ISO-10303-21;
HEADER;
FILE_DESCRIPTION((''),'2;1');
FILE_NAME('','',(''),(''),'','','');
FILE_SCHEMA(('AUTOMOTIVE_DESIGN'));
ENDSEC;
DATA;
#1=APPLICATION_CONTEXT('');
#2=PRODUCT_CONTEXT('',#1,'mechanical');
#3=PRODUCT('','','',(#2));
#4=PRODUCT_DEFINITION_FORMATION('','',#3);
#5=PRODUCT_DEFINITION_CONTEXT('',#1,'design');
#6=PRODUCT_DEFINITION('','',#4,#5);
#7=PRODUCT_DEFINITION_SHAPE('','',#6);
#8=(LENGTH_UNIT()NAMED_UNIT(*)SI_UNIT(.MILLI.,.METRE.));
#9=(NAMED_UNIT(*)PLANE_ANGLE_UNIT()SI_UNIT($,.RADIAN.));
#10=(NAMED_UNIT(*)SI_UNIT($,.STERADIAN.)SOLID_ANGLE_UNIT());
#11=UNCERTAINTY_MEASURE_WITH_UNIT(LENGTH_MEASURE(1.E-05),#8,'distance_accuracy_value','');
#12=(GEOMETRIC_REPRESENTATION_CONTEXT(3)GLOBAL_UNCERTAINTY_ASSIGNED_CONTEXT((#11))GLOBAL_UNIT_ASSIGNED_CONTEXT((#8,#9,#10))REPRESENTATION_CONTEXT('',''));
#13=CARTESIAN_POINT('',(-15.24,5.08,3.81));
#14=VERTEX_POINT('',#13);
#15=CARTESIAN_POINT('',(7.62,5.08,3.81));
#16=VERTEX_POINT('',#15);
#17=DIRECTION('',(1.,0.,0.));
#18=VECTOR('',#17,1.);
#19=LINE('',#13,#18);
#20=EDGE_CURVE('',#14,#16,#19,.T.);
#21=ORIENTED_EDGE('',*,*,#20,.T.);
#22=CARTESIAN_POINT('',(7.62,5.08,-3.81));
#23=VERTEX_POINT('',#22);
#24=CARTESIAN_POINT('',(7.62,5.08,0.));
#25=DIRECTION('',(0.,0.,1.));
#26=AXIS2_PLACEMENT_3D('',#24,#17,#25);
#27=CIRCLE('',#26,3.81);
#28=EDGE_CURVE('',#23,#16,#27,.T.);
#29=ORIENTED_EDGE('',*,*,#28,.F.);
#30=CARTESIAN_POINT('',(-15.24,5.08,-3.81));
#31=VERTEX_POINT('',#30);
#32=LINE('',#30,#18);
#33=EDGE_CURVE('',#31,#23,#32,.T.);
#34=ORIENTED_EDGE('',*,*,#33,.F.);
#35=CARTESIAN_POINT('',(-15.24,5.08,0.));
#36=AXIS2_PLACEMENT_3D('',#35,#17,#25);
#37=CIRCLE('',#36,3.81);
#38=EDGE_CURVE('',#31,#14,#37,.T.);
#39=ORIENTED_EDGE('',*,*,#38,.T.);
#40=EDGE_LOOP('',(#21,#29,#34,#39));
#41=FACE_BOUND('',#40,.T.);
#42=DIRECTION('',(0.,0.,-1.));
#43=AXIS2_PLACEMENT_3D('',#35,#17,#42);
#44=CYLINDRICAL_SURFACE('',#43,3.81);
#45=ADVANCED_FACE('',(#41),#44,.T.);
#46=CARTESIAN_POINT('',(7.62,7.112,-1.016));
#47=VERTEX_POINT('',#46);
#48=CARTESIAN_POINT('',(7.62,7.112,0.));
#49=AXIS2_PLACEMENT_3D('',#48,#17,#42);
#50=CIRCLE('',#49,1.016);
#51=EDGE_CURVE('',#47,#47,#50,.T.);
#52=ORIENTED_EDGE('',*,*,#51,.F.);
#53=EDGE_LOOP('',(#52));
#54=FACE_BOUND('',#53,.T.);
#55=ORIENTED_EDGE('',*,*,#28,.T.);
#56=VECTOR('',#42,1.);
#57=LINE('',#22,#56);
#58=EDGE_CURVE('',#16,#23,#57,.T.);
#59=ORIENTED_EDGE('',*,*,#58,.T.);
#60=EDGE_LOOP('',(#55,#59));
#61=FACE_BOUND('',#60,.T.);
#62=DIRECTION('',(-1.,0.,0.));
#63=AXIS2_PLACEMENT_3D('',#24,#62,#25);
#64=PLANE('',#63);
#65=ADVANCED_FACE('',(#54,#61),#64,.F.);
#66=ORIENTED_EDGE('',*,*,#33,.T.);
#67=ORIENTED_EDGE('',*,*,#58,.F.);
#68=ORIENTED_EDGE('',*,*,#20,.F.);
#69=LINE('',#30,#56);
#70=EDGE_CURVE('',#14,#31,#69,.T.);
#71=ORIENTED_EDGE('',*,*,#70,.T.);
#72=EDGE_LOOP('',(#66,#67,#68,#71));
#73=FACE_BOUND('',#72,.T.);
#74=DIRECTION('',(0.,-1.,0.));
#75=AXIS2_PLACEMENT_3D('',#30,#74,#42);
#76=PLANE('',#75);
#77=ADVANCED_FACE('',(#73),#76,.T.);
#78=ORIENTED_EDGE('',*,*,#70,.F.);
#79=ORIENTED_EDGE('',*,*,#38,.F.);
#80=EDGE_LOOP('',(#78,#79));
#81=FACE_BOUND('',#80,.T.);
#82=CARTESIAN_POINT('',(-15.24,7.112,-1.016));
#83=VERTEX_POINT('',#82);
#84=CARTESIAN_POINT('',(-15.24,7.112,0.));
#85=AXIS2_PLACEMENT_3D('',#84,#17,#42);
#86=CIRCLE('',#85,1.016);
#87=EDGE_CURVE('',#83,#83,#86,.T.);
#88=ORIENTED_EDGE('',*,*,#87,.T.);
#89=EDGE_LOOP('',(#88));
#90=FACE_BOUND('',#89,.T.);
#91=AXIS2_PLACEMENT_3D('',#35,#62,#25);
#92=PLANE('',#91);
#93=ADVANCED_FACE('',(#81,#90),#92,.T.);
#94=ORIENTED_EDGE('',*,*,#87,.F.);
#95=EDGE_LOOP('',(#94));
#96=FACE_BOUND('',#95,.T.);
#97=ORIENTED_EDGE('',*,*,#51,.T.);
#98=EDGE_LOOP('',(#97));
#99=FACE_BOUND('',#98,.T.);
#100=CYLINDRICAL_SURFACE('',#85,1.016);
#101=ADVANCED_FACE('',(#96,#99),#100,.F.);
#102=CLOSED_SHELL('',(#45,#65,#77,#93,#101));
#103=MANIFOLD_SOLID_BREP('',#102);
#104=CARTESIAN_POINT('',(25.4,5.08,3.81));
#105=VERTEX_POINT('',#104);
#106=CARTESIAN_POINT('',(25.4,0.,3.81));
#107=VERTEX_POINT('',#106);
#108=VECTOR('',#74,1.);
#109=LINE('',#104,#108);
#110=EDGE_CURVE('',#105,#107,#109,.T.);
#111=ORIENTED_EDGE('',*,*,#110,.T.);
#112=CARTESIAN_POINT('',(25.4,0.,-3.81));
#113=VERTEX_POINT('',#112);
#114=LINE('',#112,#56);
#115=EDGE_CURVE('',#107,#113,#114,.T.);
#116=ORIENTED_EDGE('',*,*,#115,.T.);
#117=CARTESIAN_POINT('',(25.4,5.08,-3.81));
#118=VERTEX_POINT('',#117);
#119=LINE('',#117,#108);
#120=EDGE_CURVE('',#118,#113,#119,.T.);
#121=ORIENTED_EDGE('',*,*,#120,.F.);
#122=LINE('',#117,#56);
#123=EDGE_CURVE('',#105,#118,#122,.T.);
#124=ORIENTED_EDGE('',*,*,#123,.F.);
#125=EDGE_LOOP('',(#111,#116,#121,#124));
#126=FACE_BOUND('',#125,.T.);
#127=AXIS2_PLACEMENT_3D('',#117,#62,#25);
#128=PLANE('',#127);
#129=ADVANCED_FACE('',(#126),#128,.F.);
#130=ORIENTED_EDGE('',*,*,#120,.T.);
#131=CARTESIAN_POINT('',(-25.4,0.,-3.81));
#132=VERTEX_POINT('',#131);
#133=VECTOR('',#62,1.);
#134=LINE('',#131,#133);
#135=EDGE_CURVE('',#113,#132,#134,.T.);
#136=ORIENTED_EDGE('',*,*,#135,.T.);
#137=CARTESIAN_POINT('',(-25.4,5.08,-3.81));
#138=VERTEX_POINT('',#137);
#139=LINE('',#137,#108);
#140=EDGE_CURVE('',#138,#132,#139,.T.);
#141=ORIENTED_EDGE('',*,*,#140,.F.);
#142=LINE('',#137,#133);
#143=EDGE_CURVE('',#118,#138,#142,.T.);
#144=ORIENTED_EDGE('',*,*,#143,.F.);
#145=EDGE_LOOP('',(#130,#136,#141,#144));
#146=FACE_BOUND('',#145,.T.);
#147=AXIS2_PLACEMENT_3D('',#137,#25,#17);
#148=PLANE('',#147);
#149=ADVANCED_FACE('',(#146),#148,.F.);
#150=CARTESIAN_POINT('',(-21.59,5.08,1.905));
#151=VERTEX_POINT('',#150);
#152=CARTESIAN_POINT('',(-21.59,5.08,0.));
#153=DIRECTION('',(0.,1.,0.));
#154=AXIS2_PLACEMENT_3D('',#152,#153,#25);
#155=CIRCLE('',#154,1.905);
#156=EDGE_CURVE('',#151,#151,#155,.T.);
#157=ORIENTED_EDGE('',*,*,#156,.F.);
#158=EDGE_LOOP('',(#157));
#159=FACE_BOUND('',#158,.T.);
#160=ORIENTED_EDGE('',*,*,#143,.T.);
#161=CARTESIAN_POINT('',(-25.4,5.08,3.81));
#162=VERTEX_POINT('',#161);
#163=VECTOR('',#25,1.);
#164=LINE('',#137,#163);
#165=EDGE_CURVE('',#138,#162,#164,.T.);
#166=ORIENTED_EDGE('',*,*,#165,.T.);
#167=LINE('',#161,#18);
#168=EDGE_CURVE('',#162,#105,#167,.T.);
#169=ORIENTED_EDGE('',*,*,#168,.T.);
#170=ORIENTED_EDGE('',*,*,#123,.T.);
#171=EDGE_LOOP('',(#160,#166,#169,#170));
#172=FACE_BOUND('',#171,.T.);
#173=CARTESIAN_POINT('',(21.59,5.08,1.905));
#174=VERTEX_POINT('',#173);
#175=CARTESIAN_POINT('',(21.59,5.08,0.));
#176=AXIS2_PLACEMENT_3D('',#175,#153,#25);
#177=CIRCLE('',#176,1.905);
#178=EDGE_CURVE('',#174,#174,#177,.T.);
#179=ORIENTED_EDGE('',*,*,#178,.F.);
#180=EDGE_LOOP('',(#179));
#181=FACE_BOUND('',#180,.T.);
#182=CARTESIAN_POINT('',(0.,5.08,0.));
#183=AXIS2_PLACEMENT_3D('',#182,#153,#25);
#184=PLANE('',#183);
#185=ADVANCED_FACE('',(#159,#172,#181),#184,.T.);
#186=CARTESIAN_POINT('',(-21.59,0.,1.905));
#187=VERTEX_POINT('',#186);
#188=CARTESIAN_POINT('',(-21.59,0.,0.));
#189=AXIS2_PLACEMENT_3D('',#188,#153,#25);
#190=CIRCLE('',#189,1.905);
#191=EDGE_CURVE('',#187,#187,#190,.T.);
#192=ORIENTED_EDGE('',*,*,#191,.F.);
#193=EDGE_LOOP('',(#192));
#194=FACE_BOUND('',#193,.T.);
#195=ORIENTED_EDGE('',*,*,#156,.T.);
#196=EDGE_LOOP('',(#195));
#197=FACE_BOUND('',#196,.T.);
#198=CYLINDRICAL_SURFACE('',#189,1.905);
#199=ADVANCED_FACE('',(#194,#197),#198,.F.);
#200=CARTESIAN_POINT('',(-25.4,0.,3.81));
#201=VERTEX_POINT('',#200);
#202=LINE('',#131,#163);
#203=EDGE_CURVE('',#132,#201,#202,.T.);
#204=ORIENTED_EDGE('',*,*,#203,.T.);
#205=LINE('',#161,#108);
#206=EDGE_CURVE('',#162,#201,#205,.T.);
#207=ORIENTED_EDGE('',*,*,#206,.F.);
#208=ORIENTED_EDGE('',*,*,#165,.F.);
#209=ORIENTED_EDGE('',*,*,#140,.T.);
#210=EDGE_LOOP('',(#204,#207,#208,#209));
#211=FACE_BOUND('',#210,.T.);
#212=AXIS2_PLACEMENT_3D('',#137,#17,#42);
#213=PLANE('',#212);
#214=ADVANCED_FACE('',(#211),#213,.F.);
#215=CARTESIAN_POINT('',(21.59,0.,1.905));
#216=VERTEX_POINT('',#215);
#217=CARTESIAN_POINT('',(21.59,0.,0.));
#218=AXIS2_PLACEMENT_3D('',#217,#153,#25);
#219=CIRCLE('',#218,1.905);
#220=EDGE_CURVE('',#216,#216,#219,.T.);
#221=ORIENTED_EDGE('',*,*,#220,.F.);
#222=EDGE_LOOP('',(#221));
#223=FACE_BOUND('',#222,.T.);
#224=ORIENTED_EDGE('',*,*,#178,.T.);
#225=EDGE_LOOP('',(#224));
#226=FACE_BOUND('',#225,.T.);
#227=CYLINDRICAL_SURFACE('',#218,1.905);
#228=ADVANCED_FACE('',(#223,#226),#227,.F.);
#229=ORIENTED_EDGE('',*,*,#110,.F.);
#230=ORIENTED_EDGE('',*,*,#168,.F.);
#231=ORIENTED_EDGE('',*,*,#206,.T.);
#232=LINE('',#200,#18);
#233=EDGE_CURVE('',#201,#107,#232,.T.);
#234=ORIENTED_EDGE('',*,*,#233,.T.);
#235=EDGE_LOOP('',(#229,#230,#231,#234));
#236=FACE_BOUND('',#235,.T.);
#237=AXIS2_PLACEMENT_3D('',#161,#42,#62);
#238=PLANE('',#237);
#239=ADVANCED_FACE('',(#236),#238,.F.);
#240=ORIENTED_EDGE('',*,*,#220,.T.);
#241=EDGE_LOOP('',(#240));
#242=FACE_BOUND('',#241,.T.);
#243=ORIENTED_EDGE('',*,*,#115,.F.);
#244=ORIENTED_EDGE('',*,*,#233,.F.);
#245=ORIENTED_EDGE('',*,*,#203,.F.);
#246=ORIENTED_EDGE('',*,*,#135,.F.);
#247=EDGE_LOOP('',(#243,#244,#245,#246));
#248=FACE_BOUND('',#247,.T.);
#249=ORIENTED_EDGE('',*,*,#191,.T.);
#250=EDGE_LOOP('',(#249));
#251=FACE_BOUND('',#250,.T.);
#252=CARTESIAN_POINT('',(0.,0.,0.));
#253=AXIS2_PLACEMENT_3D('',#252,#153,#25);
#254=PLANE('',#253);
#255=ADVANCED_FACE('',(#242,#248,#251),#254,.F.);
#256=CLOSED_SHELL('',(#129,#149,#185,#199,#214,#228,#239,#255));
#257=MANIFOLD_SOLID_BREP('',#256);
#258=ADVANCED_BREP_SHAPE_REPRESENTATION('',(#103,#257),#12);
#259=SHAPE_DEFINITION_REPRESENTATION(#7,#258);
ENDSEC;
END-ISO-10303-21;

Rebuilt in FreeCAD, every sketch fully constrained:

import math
import FreeCAD as App
import Part
import Sketcher
Q = App.Units.Quantity

doc = App.newDocument("Part")
body = doc.addObject("PartDesign::Body", "Body")

# Sketch on XZ plane
sketch1 = body.newObject("Sketcher::SketchObject", "Sketch")
sketch1.AttachmentSupport = (doc.getObject("XZ_Plane"), [""])
sketch1.MapMode = "FlatFace"
sketch1.addGeometry([
    Part.LineSegment(App.Vector(-25, -4, 0), App.Vector(-25, 4, 0)),
    Part.LineSegment(App.Vector(-25, 4, 0), App.Vector(25, 4, 0)),
    Part.LineSegment(App.Vector(25, 4, 0), App.Vector(25, -4, 0)),
    Part.LineSegment(App.Vector(25, -4, 0), App.Vector(-25, -4, 0)),
], False)
sketch1.addConstraint([
    Sketcher.Constraint("Coincident", 0, 2, 1, 1),
    Sketcher.Constraint("Coincident", 1, 2, 2, 1),
    Sketcher.Constraint("Coincident", 2, 2, 3, 1),
    Sketcher.Constraint("Coincident", 3, 2, 0, 1),
    Sketcher.Constraint("Vertical", 0),
    Sketcher.Constraint("Horizontal", 1),
    Sketcher.Constraint("Vertical", 2),
    Sketcher.Constraint("Horizontal", 3),
    Sketcher.Constraint("Symmetric", 0, 2, 2, 2, -1, 1),
    Sketcher.Constraint("DistanceX", 1, 1, 1, 2, Q("2 in")),
    Sketcher.Constraint("DistanceY", 0, 1, 0, 2, Q("0.3 in")),
])
pad1 = body.newObject("PartDesign::Pad", "Pad")
pad1.Profile = sketch1
pad1.Length = Q("0.2 in")
pad1.Reversed = True

# Sketch on XZ plane
sketch2 = body.newObject("Sketcher::SketchObject", "Sketch001")
sketch2.AttachmentSupport = (doc.getObject("XZ_Plane"), [""])
sketch2.MapMode = "FlatFace"
sketch2.AttachmentOffset = App.Placement(App.Vector(0, 0, -0.2 * 25.4), App.Rotation())
sketch2.addGeometry([
    Part.Circle(App.Vector(-21.6, 0, 0), App.Vector(0, 0, 1), 1.9),
    Part.Circle(App.Vector(21.6, 0, 0), App.Vector(0, 0, 1), 1.9),
], False)
sketch2.addConstraint([
    Sketcher.Constraint("Equal", 0, 1),
    Sketcher.Constraint("Symmetric", 0, 3, 1, 3, -1, 1),
    Sketcher.Constraint("PointOnObject", 0, 3, -1),
    Sketcher.Constraint("Diameter", 0, Q("0.15 in")),
    Sketcher.Constraint("DistanceX", 0, 3, 1, 3, Q("1.7 in")),
])
pocket1 = body.newObject("PartDesign::Pocket", "Pocket")
pocket1.Profile = sketch2
pocket1.Type = "ThroughAll"
pocket1.Reversed = True
body2 = doc.addObject("PartDesign::Body", "Body001")

# Sketch on YZ plane
sketch3 = body2.newObject("Sketcher::SketchObject", "Sketch002")
sketch3.AttachmentSupport = (doc.getObject("YZ_Plane001"), [""])
sketch3.MapMode = "FlatFace"
sketch3.AttachmentOffset = App.Placement(App.Vector(0, 0, 0.3 * 25.4), App.Rotation())
sketch3.addGeometry([
    Part.LineSegment(App.Vector(5.1, 3.8, 0), App.Vector(5.1, -3.8, 0)),
    Part.ArcOfCircle(Part.Circle(App.Vector(5.1, 0, 0), App.Vector(0, 0, 1), 3.8), math.radians(-90), math.radians(90)),
    Part.Circle(App.Vector(7.1, 0, 0), App.Vector(0, 0, 1), 1),
], False)
sketch3.addConstraint([
    Sketcher.Constraint("Coincident", 0, 1, 1, 2),
    Sketcher.Constraint("Coincident", 1, 1, 0, 2),
    Sketcher.Constraint("Vertical", 0),
    Sketcher.Constraint("PointOnObject", 1, 3, -1),
    Sketcher.Constraint("PointOnObject", 2, 3, -1),
    Sketcher.Constraint("Vertical", 1, 3, 0, 1),
    Sketcher.Constraint("Diameter", 2, Q("0.08 in")),
    Sketcher.Constraint("Radius", 1, Q("0.15 in")),
    Sketcher.Constraint("DistanceX", -1, 1, 1, 3, Q("0.2 in")),
    Sketcher.Constraint("DistanceX", -1, 1, 2, 3, Q("0.28 in")),
])
pad2 = body2.newObject("PartDesign::Pad", "Pad001")
pad2.Profile = sketch3
pad2.Length = Q("0.9 in")
pad2.Reversed = True

doc.recompute()
